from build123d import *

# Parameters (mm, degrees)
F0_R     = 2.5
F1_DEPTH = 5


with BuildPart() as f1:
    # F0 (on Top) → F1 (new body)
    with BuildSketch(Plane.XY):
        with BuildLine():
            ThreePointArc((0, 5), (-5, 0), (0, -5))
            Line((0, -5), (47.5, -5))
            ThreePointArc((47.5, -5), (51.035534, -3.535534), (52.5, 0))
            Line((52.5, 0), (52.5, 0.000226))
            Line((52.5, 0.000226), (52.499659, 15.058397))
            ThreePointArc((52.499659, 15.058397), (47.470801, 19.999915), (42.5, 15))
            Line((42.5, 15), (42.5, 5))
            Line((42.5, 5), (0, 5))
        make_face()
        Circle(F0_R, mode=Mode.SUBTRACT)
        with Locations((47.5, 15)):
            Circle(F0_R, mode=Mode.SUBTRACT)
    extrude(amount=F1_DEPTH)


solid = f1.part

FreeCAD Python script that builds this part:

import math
import FreeCAD as App
import Part
import Sketcher

V = App.Vector
Q = App.Units.Quantity

doc = App.newDocument("Part")
body = doc.addObject("PartDesign::Body", "Body")

# Sketch on XY plane
sketch1 = doc.addObject("Sketcher::SketchObject", "Sketch")
body.addObject(sketch1)
sketch1.AttachmentSupport = (doc.XY_Plane, [""])
sketch1.MapMode = "FlatFace"
sketch1.addGeometry([
    Part.ArcOfCircle(Part.Circle(V(0, 0, 0), V(0, 0, 1), 5), math.radians(90), math.radians(270)),  # 0
    Part.LineSegment(V(0, -5, 0), V(47.5, -5, 0)),  # 1
    Part.ArcOfCircle(Part.Circle(V(47.5, 0, 0), V(0, 0, 1), 5), math.radians(-90), math.radians(0)),  # 2
    Part.LineSegment(V(52.5, 0, 0), V(52.5, 0.00023, 0)),  # 3
    Part.LineSegment(V(52.5, 0.00023, 0), V(52.49966, 15.0584, 0)),  # 4
    Part.ArcOfCircle(Part.Circle(V(47.5, 15, 0), V(0, 0, 1), 5), math.radians(1), math.radians(180)),  # 5
    Part.LineSegment(V(42.5, 15, 0), V(42.5, 5, 0)),  # 6
    Part.LineSegment(V(42.5, 5, 0), V(0, 5, 0)),  # 7
    Part.Circle(V(0, 0, 0), V(0, 0, 1), 2.5),  # 8
    Part.Circle(V(47.5, 15, 0), V(0, 0, 1), 2.5),  # 9
], False)
sketch1.addConstraint([
    Sketcher.Constraint("Tangent", 0, 2, 1, 1),
    Sketcher.Constraint("Tangent", 1, 2, 2, 1),
    Sketcher.Constraint("Tangent", 2, 2, 3, 1),
    Sketcher.Constraint("Coincident", 3, 2, 4, 1),
    Sketcher.Constraint("Coincident", 4, 2, 5, 1),
    Sketcher.Constraint("Tangent", 5, 2, 6, 1),
    Sketcher.Constraint("Coincident", 6, 2, 7, 1),
    Sketcher.Constraint("Tangent", 7, 2, 0, 1),
    Sketcher.Constraint("Horizontal", 1),
    Sketcher.Constraint("Vertical", 6),
    Sketcher.Constraint("Horizontal", 7),
    Sketcher.Constraint("Coincident", 0, 3, -1, 1),
    Sketcher.Constraint("Coincident", 8, 3, -1, 1),
    Sketcher.Constraint("Coincident", 9, 3, 5, 3),
    Sketcher.Constraint("Equal", 0, 2),
    Sketcher.Constraint("Equal", 2, 5),
    Sketcher.Constraint("Equal", 8, 9),
    Sketcher.Constraint("PointOnObject", 2, 2, -1),
    Sketcher.Constraint("Vertical", 2, 3, 5, 3),
    Sketcher.Constraint("Diameter", 8, Q("5 mm")),
    Sketcher.Constraint("Radius", 0, Q("5 mm")),
    Sketcher.Constraint("DistanceY", 6, 2, 6, 1, Q("10 mm")),
    Sketcher.Constraint("DistanceX", 1, 1, 1, 2, Q("47.5 mm")),
    Sketcher.Constraint("Distance", 4, Q("15.058171 mm")),
    Sketcher.Constraint("DistanceY", 3, 1, 3, 2, Q("0.000226 mm")),
])
pad1 = doc.addObject("PartDesign::Pad", "Pad")
body.addObject(pad1)
pad1.Profile = sketch1
pad1.Length = 5

doc.recompute()
